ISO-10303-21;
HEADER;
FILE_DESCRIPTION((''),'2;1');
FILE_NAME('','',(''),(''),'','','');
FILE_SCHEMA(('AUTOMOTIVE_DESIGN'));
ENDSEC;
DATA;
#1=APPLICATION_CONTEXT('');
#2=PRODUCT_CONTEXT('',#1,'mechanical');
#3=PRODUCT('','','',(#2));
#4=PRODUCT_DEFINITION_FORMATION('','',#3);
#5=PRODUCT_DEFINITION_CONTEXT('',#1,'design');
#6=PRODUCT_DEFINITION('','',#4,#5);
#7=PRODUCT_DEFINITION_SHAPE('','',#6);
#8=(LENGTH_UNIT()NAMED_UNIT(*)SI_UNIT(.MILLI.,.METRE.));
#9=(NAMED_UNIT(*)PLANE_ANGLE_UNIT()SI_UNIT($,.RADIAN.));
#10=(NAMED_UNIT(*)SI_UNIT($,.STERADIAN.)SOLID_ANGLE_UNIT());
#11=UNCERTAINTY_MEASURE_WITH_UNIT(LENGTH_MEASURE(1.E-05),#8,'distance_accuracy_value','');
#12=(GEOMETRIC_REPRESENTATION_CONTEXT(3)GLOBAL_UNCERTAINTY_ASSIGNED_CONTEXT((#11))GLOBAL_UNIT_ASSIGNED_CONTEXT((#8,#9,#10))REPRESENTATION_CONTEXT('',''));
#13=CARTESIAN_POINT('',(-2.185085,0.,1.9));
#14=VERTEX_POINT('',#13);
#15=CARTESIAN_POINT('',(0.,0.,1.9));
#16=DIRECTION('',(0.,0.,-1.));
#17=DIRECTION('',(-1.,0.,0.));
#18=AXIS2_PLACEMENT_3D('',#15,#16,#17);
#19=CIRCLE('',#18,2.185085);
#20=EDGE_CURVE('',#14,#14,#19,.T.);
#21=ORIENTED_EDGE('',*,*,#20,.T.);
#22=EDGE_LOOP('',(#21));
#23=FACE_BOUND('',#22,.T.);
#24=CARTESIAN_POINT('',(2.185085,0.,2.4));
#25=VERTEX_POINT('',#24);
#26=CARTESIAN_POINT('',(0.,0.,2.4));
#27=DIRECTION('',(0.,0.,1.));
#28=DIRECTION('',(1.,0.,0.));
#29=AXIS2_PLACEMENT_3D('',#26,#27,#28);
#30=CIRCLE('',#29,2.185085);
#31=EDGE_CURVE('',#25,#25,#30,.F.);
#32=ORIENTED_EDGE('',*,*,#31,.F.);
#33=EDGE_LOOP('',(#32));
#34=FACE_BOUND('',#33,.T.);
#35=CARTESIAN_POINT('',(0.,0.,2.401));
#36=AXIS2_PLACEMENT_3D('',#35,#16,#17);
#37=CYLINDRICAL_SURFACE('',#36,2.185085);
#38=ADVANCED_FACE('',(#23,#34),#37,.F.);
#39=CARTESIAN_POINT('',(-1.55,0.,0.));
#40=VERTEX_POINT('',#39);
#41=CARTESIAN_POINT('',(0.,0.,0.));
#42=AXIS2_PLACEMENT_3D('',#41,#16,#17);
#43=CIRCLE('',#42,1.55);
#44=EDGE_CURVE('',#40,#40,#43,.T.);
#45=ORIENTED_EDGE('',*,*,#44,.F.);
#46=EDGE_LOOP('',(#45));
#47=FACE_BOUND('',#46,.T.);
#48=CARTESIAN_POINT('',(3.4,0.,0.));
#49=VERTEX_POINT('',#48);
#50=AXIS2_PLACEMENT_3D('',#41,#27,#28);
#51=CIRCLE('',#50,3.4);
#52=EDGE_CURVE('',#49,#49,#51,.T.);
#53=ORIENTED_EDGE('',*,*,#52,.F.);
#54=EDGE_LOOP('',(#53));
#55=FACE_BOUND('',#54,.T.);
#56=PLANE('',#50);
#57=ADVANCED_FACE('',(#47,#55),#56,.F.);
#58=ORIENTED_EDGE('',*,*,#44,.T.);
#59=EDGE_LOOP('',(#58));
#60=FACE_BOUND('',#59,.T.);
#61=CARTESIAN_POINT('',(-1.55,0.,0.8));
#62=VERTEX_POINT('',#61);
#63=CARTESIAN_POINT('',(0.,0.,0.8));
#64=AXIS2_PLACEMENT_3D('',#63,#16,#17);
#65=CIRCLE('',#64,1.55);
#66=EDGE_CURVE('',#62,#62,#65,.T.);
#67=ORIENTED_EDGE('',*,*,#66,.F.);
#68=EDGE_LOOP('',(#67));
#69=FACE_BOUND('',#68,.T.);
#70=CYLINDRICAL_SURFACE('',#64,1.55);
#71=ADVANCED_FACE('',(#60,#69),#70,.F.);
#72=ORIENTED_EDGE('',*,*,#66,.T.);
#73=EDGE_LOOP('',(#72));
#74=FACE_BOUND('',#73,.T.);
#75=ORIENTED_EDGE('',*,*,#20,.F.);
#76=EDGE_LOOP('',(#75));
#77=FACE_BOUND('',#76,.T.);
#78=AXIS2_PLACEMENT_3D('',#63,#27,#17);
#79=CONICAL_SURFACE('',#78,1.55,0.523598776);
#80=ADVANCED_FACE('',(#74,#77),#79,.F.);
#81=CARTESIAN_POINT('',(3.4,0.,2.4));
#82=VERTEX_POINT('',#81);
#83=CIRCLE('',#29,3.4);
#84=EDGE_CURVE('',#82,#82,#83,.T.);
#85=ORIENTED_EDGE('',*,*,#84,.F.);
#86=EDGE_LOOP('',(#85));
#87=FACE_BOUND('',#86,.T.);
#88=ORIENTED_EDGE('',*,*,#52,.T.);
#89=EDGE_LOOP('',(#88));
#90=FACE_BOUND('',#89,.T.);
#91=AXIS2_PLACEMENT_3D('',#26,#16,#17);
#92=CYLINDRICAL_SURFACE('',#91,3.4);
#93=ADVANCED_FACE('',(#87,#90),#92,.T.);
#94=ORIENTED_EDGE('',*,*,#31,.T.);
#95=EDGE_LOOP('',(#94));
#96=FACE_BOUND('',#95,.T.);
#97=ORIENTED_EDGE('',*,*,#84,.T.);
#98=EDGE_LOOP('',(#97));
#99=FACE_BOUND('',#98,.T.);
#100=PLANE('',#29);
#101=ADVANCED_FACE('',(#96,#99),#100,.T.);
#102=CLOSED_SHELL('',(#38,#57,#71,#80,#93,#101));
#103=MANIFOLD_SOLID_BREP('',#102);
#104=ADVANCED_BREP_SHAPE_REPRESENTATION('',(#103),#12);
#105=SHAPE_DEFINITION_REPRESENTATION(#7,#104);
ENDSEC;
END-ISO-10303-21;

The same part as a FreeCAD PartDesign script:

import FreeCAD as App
import Part
import Sketcher
from FreeCAD import Vector
Q = App.Units.Quantity

doc = App.newDocument("Part")
params = doc.addObject("Spreadsheet::Sheet", "Params")
for row, (alias, value) in enumerate([
    ("sketch1_diameter", "6.8 mm"),
    ("pad1_length", "2.4 mm"),
    ("sketch2_diameter", "3.1 mm"),
    ("pocket1_length", "0.8 mm"),
    ("sketch3_diameter", "3.1 mm"),
    ("pocket2_length", "1.1 mm"),
    ("pocket2_taper", "30 deg"),
], start=1):
    params.set(f"A{row}", alias)
    params.set(f"B{row}", "=" + value)
    params.setAlias(f"B{row}", alias)

body = doc.addObject("PartDesign::Body", "Body")

# Sketch on XY plane
sketch1 = doc.addObject("Sketcher::SketchObject", "Sketch")
body.addObject(sketch1)
sketch1.AttachmentSupport = (doc.XY_Plane, [""])
sketch1.MapMode = "FlatFace"
sketch1.addGeometry(Part.Circle(Vector(0, 0, 0), Vector(0, 0, 1), 3.4), False)
sketch1.addConstraint([
    Sketcher.Constraint("Coincident", 0, 3, -1, 1),
    Sketcher.Constraint("Diameter", 0, Q("6.8 mm")),
])
sketch1.setExpression("Constraints[1]", "Params.sketch1_diameter")
pad1 = doc.addObject("PartDesign::Pad", "Pad")
body.addObject(pad1)
pad1.Profile = sketch1
pad1.setExpression("Length", "Params.pad1_length")

# Sketch on XY plane
sketch2 = doc.addObject("Sketcher::SketchObject", "Sketch001")
body.addObject(sketch2)
sketch2.AttachmentSupport = (doc.XY_Plane, [""])
sketch2.MapMode = "FlatFace"
sketch2.addGeometry(Part.Circle(Vector(0, 0, 0), Vector(0, 0, 1), 1.6), False)
sketch2.addConstraint([
    Sketcher.Constraint("Coincident", 0, 3, -1, 1),
    Sketcher.Constraint("Diameter", 0, Q("3.1 mm")),
])
sketch2.setExpression("Constraints[1]", "Params.sketch2_diameter")
pocket1 = doc.addObject("PartDesign::Pocket", "Pocket")
body.addObject(pocket1)
pocket1.Profile = sketch2
pocket1.setExpression("Length", "Params.pocket1_length")
pocket1.Reversed = True

# Sketch on XY plane
sketch3 = doc.addObject("Sketcher::SketchObject", "Sketch002")
body.addObject(sketch3)
sketch3.AttachmentSupport = (doc.XY_Plane, [""])
sketch3.MapMode = "FlatFace"
sketch3.AttachmentOffset = App.Placement(Vector(0, 0, 0.8), App.Rotation())
sketch3.addGeometry(Part.Circle(Vector(0, 0, 0), Vector(0, 0, 1), 1.6), False)
sketch3.addConstraint([
    Sketcher.Constraint("Coincident", 0, 3, -1, 1),
    Sketcher.Constraint("Diameter", 0, Q("3.1 mm")),
])
sketch3.setExpression("Constraints[1]", "Params.sketch3_diameter")
pocket2 = doc.addObject("PartDesign::Pocket", "Pocket001")
body.addObject(pocket2)
pocket2.Profile = sketch3
pocket2.setExpression("Length", "Params.pocket2_length")
pocket2.Reversed = True
pocket2.setExpression("TaperAngle", "Params.pocket2_taper")

# Sketch on XY plane
sketch4 = doc.addObject("Sketcher::SketchObject", "Sketch003")
body.addObject(sketch4)
sketch4.AttachmentSupport = (doc.XY_Plane, [""])
sketch4.MapMode = "FlatFace"
sketch4.AttachmentOffset = App.Placement(Vector(0, 0, 1.9), App.Rotation())
sketch4.addGeometry(Part.Circle(Vector(0, 0, 0), Vector(0, 0, 1), 2.2), False)
sketch4.addConstraint([
    Sketcher.Constraint("Coincident", 0, 3, -1, 1),
    Sketcher.Constraint("Diameter", 0, Q("4.370171 mm")),
])
pocket3 = doc.addObject("PartDesign::Pocket", "Pocket002")
body.addObject(pocket3)
pocket3.Profile = sketch4
pocket3.Type = "UpToFirst"
pocket3.Reversed = True

doc.recompute()
